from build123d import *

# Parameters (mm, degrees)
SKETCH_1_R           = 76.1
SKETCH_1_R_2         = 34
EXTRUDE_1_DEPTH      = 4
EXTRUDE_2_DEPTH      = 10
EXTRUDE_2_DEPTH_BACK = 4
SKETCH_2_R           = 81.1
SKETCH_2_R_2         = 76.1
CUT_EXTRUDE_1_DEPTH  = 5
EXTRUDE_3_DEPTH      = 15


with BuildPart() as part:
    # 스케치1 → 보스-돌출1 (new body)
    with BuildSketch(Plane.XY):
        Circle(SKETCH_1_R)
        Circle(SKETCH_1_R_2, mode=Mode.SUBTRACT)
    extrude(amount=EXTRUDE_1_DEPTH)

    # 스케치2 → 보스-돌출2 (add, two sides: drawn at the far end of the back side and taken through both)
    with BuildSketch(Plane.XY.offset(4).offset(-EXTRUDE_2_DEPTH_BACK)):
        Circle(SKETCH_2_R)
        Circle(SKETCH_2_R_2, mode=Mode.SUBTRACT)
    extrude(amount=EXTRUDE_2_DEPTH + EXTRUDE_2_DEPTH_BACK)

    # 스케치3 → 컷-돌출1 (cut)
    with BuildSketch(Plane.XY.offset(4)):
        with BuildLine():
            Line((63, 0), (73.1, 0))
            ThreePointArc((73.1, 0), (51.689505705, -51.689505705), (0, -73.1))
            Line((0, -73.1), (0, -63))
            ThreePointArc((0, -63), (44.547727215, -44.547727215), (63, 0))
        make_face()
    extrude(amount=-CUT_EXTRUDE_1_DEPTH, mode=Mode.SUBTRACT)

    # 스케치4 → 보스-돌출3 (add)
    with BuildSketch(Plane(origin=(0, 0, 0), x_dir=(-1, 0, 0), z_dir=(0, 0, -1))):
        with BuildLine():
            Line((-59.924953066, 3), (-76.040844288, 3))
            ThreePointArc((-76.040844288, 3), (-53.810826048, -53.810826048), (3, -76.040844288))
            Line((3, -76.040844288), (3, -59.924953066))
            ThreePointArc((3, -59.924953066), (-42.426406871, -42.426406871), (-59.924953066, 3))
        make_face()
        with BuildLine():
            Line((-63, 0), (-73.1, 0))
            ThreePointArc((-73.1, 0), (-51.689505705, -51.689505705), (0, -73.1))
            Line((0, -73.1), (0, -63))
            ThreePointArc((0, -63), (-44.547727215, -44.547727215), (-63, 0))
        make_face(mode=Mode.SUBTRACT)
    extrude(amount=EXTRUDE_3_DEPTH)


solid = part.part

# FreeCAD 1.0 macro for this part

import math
import FreeCAD as App
import Part
import Sketcher
Q = App.Units.Quantity

doc = App.newDocument("Part")
body = doc.addObject("PartDesign::Body", "Body")

# Sketch on XY plane
sketch1 = body.newObject("Sketcher::SketchObject", "Sketch")
sketch1.AttachmentSupport = (doc.getObject("XY_Plane"), [""])
sketch1.MapMode = "FlatFace"
sketch1.addGeometry([
    Part.Circle(App.Vector(0, 0, 0), App.Vector(0, 0, 1), 76),
    Part.Circle(App.Vector(0, 0, 0), App.Vector(0, 0, 1), 34),
], False)
sketch1.addConstraint([
    Sketcher.Constraint("Coincident", 0, 3, -1, 1),
    Sketcher.Constraint("Coincident", 1, 3, -1, 1),
    Sketcher.Constraint("Diameter", 1, Q("68 mm")),
    Sketcher.Constraint("Diameter", 0, Q("152.2 mm")),
])
pad1 = body.newObject("PartDesign::Pad", "Pad")
pad1.Profile = sketch1
pad1.Length = 4

# Sketch on XY plane
sketch2 = body.newObject("Sketcher::SketchObject", "Sketch001")
sketch2.AttachmentSupport = (doc.getObject("XY_Plane"), [""])
sketch2.MapMode = "FlatFace"
sketch2.AttachmentOffset = App.Placement(App.Vector(0, 0, 4), App.Rotation())
sketch2.addGeometry([
    Part.Circle(App.Vector(0, 0, 0), App.Vector(0, 0, 1), 81),
    Part.Circle(App.Vector(0, 0, 0), App.Vector(0, 0, 1), 76),
], False)
sketch2.addConstraint([
    Sketcher.Constraint("Coincident", 0, 3, -1, 1),
    Sketcher.Constraint("Coincident", 1, 3, -1, 1),
    Sketcher.Constraint("Diameter", 0, Q("162.2 mm")),
    Sketcher.Constraint("Diameter", 1, Q("152.2 mm")),
])
pad2 = body.newObject("PartDesign::Pad", "Pad001")
pad2.Profile = sketch2
pad2.Type = "TwoLengths"
pad2.Length = 10
pad2.Length2 = 4

# Sketch on XY plane
sketch3 = body.newObject("Sketcher::SketchObject", "Sketch002")
sketch3.AttachmentSupport = (doc.getObject("XY_Plane"), [""])
sketch3.MapMode = "FlatFace"
sketch3.AttachmentOffset = App.Placement(App.Vector(0, 0, 4), App.Rotation())
sketch3.addGeometry([
    Part.LineSegment(App.Vector(73, 0, 0), App.Vector(63, 0, 0)),
    Part.ArcOfCircle(Part.Circle(App.Vector(0, 0, 0), App.Vector(0, 0, 1), 63), math.radians(-90), math.radians(0)),
    Part.LineSegment(App.Vector(0, -63, 0), App.Vector(0, -73, 0)),
    Part.ArcOfCircle(Part.Circle(App.Vector(0, 0, 0), App.Vector(0, 0, 1), 73), math.radians(-90), math.radians(0)),
], False)
sketch3.addConstraint([
    Sketcher.Constraint("Coincident", 0, 2, 1, 2),
    Sketcher.Constraint("Coincident", 1, 1, 2, 1),
    Sketcher.Constraint("Coincident", 2, 2, 3, 1),
    Sketcher.Constraint("Coincident", 3, 2, 0, 1),
    Sketcher.Constraint("Horizontal", 0),
    Sketcher.Constraint("Vertical", 2),
    Sketcher.Constraint("Coincident", 1, 3, -1, 1),
    Sketcher.Constraint("Coincident", 3, 3, -1, 1),
    Sketcher.Constraint("PointOnObject", 0, 2, -1),
    Sketcher.Constraint("PointOnObject", 1, 1, -2),
    Sketcher.Constraint("Radius", 1, Q("63 mm")),
    Sketcher.Constraint("Radius", 3, Q("73.1 mm")),
])
pocket1 = body.newObject("PartDesign::Pocket", "Pocket")
pocket1.Profile = sketch3
pocket1.Length = 5

# Sketch on XY plane
sketch4 = body.newObject("Sketcher::SketchObject", "Sketch003")
sketch4.AttachmentSupport = (doc.getObject("XY_Plane"), [""])
sketch4.MapMode = "FlatFace"
sketch4.addGeometry([
    Part.LineSegment(App.Vector(60, 3, 0), App.Vector(76, 3, 0)),  # 0
    Part.ArcOfCircle(Part.Circle(App.Vector(0, 0, 0), App.Vector(0, 0, 1), 76), math.radians(-92), math.radians(2)),  # 1
    Part.LineSegment(App.Vector(-3, -76, 0), App.Vector(-3, -60, 0)),  # 2
    Part.ArcOfCircle(Part.Circle(App.Vector(0, 0, 0), App.Vector(0, 0, 1), 60), math.radians(-93), math.radians(3)),  # 3
    Part.LineSegment(App.Vector(73, 0, 0), App.Vector(63, 0, 0)),  # 4
    Part.ArcOfCircle(Part.Circle(App.Vector(0, 0, 0), App.Vector(0, 0, 1), 63), math.radians(-90), math.radians(0)),  # 5
    Part.LineSegment(App.Vector(0, -63, 0), App.Vector(0, -73, 0)),  # 6
    Part.ArcOfCircle(Part.Circle(App.Vector(0, 0, 0), App.Vector(0, 0, 1), 73), math.radians(-90), math.radians(0)),  # 7
], False)
sketch4.addConstraint([
    Sketcher.Constraint("Coincident", 0, 2, 1, 2),
    Sketcher.Constraint("Coincident", 1, 1, 2, 1),
    Sketcher.Constraint("Coincident", 2, 2, 3, 1),
    Sketcher.Constraint("Coincident", 3, 2, 0, 1),
    Sketcher.Constraint("Coincident", 4, 2, 5, 2),
    Sketcher.Constraint("Coincident", 5, 1, 6, 1),
    Sketcher.Constraint("Coincident", 6, 2, 7, 1),
    Sketcher.Constraint("Coincident", 7, 2, 4, 1),
    Sketcher.Constraint("Horizontal", 0),
    Sketcher.Constraint("Vertical", 2),
    Sketcher.Constraint("Horizontal", 4),
    Sketcher.Constraint("Vertical", 6),
    Sketcher.Constraint("Coincident", 1, 3, -1, 1),
    Sketcher.Constraint("Coincident", 3, 3, -1, 1),
    Sketcher.Constraint("Coincident", 5, 3, -1, 1),
    Sketcher.Constraint("Coincident", 7, 3, -1, 1),
    Sketcher.Constraint("PointOnObject", 4, 2, -1),
    Sketcher.Constraint("PointOnObject", 5, 1, -2),
    Sketcher.Constraint("Equal", 0, 2),
    Sketcher.Constraint("Radius", 3, Q("60 mm")),
    Sketcher.Constraint("Radius", 5, Q("63 mm")),
    Sketcher.Constraint("Radius", 1, Q("76.1 mm")),
    Sketcher.Constraint("Radius", 7, Q("73.1 mm")),
    Sketcher.Constraint("DistanceY", -1, 1, 0, 2, Q("3 mm")),
])
pad3 = body.newObject("PartDesign::Pad", "Pad002")
pad3.Profile = sketch4
pad3.Length = 15
pad3.Reversed = True

doc.recompute()
